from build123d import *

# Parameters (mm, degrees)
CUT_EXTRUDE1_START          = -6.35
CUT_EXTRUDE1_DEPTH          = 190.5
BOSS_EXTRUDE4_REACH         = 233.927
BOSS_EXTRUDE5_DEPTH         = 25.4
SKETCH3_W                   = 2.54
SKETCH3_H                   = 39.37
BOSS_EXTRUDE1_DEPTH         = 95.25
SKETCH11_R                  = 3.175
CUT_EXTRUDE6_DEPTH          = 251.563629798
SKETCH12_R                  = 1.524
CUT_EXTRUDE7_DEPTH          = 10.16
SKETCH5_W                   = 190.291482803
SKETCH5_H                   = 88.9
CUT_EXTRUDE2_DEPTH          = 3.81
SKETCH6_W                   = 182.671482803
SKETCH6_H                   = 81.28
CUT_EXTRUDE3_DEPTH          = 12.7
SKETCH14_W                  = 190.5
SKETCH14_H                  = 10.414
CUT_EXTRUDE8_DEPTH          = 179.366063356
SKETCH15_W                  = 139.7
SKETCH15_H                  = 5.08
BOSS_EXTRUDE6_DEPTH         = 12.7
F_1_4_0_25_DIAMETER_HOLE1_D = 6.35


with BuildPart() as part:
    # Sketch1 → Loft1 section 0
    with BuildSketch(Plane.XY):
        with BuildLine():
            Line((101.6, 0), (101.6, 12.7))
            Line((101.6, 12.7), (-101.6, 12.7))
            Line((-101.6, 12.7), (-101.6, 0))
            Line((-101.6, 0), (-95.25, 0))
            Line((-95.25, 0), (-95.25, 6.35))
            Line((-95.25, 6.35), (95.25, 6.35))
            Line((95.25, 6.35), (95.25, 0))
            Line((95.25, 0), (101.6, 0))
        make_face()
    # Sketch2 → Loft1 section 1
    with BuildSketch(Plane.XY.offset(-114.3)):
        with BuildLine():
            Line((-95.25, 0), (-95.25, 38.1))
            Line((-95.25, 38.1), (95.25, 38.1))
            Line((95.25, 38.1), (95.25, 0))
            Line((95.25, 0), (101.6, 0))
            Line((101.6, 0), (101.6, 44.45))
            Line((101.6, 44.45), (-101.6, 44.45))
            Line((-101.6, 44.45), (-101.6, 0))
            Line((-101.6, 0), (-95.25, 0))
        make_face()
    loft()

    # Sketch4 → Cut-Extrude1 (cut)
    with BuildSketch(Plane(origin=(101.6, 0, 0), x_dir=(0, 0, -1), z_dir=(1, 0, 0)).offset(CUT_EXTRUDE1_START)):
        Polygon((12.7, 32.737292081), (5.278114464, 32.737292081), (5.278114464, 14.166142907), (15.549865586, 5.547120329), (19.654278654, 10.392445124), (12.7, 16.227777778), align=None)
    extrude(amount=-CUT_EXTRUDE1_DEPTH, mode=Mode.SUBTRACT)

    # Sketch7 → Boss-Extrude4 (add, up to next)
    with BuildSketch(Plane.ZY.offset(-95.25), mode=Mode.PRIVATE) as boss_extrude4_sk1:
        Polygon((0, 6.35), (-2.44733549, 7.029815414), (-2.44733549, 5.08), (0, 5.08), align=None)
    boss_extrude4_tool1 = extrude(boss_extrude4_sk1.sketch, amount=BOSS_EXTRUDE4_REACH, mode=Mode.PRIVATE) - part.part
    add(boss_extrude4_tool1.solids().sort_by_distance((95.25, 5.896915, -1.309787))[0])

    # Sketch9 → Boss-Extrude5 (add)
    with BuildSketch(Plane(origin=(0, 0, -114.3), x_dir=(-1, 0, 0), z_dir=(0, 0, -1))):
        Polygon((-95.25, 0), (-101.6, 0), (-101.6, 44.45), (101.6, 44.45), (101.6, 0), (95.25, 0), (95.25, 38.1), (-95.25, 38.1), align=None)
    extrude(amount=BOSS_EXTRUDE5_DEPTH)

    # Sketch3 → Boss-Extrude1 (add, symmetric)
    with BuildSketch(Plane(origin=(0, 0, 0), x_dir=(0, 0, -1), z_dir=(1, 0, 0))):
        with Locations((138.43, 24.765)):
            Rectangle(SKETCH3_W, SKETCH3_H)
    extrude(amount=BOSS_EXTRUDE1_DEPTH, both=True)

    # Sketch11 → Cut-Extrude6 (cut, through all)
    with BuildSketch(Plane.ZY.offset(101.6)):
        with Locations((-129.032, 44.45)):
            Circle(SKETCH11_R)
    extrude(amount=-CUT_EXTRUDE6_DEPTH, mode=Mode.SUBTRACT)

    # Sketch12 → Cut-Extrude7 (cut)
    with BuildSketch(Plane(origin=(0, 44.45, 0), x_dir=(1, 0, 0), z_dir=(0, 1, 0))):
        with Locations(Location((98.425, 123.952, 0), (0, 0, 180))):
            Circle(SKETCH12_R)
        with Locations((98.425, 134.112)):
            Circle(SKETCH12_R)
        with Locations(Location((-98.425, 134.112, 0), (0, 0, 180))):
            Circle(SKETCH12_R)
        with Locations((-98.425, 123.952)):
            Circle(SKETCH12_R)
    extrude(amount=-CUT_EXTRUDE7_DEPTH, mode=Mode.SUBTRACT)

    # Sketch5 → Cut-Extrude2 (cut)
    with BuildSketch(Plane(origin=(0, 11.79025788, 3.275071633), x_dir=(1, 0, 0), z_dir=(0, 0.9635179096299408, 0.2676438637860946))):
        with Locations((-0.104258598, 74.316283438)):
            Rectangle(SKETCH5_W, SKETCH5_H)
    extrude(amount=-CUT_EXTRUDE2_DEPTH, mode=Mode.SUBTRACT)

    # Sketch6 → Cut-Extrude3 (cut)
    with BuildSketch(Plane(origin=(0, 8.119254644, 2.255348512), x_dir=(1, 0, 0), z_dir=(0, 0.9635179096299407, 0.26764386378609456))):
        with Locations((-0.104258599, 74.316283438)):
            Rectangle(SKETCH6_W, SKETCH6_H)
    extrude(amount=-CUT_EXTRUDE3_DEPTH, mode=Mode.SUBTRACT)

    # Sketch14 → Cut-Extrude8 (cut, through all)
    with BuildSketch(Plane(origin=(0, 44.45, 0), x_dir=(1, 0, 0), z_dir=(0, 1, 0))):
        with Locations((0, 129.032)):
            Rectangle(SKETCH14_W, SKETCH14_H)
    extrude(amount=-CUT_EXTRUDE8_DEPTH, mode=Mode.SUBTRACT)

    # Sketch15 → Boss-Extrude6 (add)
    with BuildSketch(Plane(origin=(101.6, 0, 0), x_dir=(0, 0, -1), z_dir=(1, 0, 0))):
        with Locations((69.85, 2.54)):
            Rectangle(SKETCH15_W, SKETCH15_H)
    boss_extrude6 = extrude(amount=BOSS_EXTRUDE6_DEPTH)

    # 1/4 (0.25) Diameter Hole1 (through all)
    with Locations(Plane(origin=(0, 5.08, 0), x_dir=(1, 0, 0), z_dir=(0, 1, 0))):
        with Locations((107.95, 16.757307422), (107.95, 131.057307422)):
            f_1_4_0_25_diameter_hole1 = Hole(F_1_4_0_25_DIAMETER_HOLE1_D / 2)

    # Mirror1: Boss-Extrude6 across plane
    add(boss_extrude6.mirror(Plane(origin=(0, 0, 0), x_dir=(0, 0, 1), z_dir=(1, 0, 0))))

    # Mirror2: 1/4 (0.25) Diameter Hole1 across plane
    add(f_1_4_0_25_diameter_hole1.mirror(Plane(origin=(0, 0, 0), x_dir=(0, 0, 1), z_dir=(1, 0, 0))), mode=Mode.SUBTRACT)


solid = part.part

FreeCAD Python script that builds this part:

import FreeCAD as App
import Part
import Sketcher

V = App.Vector
Q = App.Units.Quantity

doc = App.newDocument("Part")
body = doc.addObject("PartDesign::Body", "Body")

# Sketch on XY plane
sketch1 = body.newObject("Sketcher::SketchObject", "Sketch")
sketch1.AttachmentSupport = (doc.getObject("XY_Plane"), [""])
sketch1.MapMode = "FlatFace"
sketch1.addGeometry([
    Part.LineSegment(V(101.6, 0, 0), V(101.6, 12.7, 0)),  # 0
    Part.LineSegment(V(101.6, 12.7, 0), V(-101.6, 12.7, 0)),  # 1
    Part.LineSegment(V(-101.6, 12.7, 0), V(-101.6, 0, 0)),  # 2
    Part.LineSegment(V(-101.6, 0, 0), V(-95.25, 0, 0)),  # 3
    Part.LineSegment(V(-95.25, 0, 0), V(-95.25, 6.35, 0)),  # 4
    Part.LineSegment(V(-95.25, 6.35, 0), V(95.25, 6.35, 0)),  # 5
    Part.LineSegment(V(95.25, 6.35, 0), V(95.25, 0, 0)),  # 6
    Part.LineSegment(V(95.25, 0, 0), V(101.6, 0, 0)),  # 7
], False)
sketch1.addConstraint([
    Sketcher.Constraint("Coincident", 0, 2, 1, 1),
    Sketcher.Constraint("Coincident", 1, 2, 2, 1),
    Sketcher.Constraint("Coincident", 2, 2, 3, 1),
    Sketcher.Constraint("Coincident", 3, 2, 4, 1),
    Sketcher.Constraint("Coincident", 4, 2, 5, 1),
    Sketcher.Constraint("Coincident", 5, 2, 6, 1),
    Sketcher.Constraint("Coincident", 6, 2, 7, 1),
    Sketcher.Constraint("Coincident", 7, 2, 0, 1),
    Sketcher.Constraint("Vertical", 0),
    Sketcher.Constraint("Horizontal", 1),
    Sketcher.Constraint("Vertical", 2),
    Sketcher.Constraint("Horizontal", 3),
    Sketcher.Constraint("Vertical", 4),
    Sketcher.Constraint("Horizontal", 5),
    Sketcher.Constraint("Vertical", 6),
    Sketcher.Constraint("Horizontal", 7),
    Sketcher.Constraint("Symmetric", 3, 2, 6, 2, -1, 1),
    Sketcher.Constraint("Symmetric", 2, 2, 7, 2, -2),
    Sketcher.Constraint("Equal", 7, 4),
    Sketcher.Constraint("DistanceX", 1, 2, 1, 1, Q("8 in")),
    Sketcher.Constraint("DistanceX", 5, 1, 5, 2, Q("7.5 in")),
    Sketcher.Constraint("DistanceY", 0, 1, 0, 2, Q("0.5 in")),
])

# Sketch on XY plane
sketch2 = body.newObject("Sketcher::SketchObject", "Sketch001")
sketch2.AttachmentSupport = (doc.getObject("XY_Plane"), [""])
sketch2.MapMode = "FlatFace"
sketch2.AttachmentOffset = App.Placement(V(0, 0, -4.5 * 25.4), App.Rotation())
sketch2.addGeometry([
    Part.LineSegment(V(-95.25, 0, 0), V(-95.25, 38.1, 0)),  # 0
    Part.LineSegment(V(-95.25, 38.1, 0), V(95.25, 38.1, 0)),  # 1
    Part.LineSegment(V(95.25, 38.1, 0), V(95.25, 0, 0)),  # 2
    Part.LineSegment(V(95.25, 0, 0), V(101.6, 0, 0)),  # 3
    Part.LineSegment(V(101.6, 0, 0), V(101.6, 44.45, 0)),  # 4
    Part.LineSegment(V(101.6, 44.45, 0), V(-101.6, 44.45, 0)),  # 5
    Part.LineSegment(V(-101.6, 44.45, 0), V(-101.6, 0, 0)),  # 6
    Part.LineSegment(V(-101.6, 0, 0), V(-95.25, 0, 0)),  # 7
], False)
sketch2.addConstraint([
    Sketcher.Constraint("Coincident", 0, 2, 1, 1),
    Sketcher.Constraint("Coincident", 1, 2, 2, 1),
    Sketcher.Constraint("Coincident", 2, 2, 3, 1),
    Sketcher.Constraint("Coincident", 3, 2, 4, 1),
    Sketcher.Constraint("Coincident", 4, 2, 5, 1),
    Sketcher.Constraint("Coincident", 5, 2, 6, 1),
    Sketcher.Constraint("Coincident", 6, 2, 7, 1),
    Sketcher.Constraint("Coincident", 7, 2, 0, 1),
    Sketcher.Constraint("Vertical", 0),
    Sketcher.Constraint("Horizontal", 1),
    Sketcher.Constraint("Vertical", 2),
    Sketcher.Constraint("Horizontal", 3),
    Sketcher.Constraint("Vertical", 4),
    Sketcher.Constraint("Horizontal", 5),
    Sketcher.Constraint("Vertical", 6),
    Sketcher.Constraint("Horizontal", 7),
    Sketcher.Constraint("Symmetric", 3, 2, 6, 2, -1, 1),
    Sketcher.Constraint("Symmetric", 2, 2, 7, 2, -2),
    Sketcher.Constraint("DistanceX", 5, 2, 5, 1, Q("8 in")),
    Sketcher.Constraint("DistanceX", 1, 1, 1, 2, Q("7.5 in")),
    Sketcher.Constraint("DistanceY", 0, 1, 0, 2, Q("1.5 in")),
    Sketcher.Constraint("DistanceY", 4, 1, 4, 2, Q("1.75 in")),
])

additiveloft = body.newObject("PartDesign::AdditiveLoft", "AdditiveLoft")
additiveloft.Profile = sketch1
additiveloft.Sections = [sketch2]

# Sketch on YZ plane
sketch3 = body.newObject("Sketcher::SketchObject", "Sketch002")
sketch3.AttachmentSupport = (doc.getObject("YZ_Plane"), [""])
sketch3.MapMode = "FlatFace"
sketch3.AttachmentOffset = App.Placement(V(0, 0, 3.75 * 25.4), App.Rotation())
sketch3.addGeometry([
    Part.LineSegment(V(32.737292, -12.7, 0), V(32.737292, -5.278114, 0)),  # 0
    Part.LineSegment(V(32.737292, -5.278114, 0), V(14.166143, -5.278114, 0)),  # 1
    Part.LineSegment(V(14.166143, -5.278114, 0), V(5.54712, -15.549866, 0)),  # 2
    Part.LineSegment(V(5.54712, -15.549866, 0), V(10.392445, -19.654279, 0)),  # 3
    Part.LineSegment(V(10.392445, -19.654279, 0), V(16.227778, -12.7, 0)),  # 4
    Part.LineSegment(V(16.227778, -12.7, 0), V(32.737292, -12.7, 0)),  # 5
], False)
sketch3.addConstraint([
    Sketcher.Constraint("Coincident", 0, 2, 1, 1),
    Sketcher.Constraint("Coincident", 1, 2, 2, 1),
    Sketcher.Constraint("Coincident", 2, 2, 3, 1),
    Sketcher.Constraint("Coincident", 3, 2, 4, 1),
    Sketcher.Constraint("Coincident", 4, 2, 5, 1),
    Sketcher.Constraint("Coincident", 5, 2, 0, 1),
    Sketcher.Constraint("Vertical", 0),
    Sketcher.Constraint("Horizontal", 1),
    Sketcher.Constraint("Horizontal", 5),
    Sketcher.Constraint("DistanceY", 4, 2, -1, 1, Q("0.5 in")),
    Sketcher.Constraint("DistanceX", 1, 2, 1, 1, Q("18.571149 mm")),
    Sketcher.Constraint("Distance", 2, Q("13.408819 mm")),
    Sketcher.Constraint("Distance", 3, Q("6.350069 mm")),
    Sketcher.Constraint("DistanceX", 5, 1, 5, 2, Q("16.509514 mm")),
    Sketcher.Constraint("DistanceY", 0, 1, 0, 2, Q("7.421886 mm")),
    Sketcher.Constraint("DistanceX", -1, 1, 2, 2, Q("5.54712 mm")),
    Sketcher.Constraint("DistanceY", 3, 2, -1, 1, Q("19.654279 mm")),
    Sketcher.Constraint("DistanceY", 2, 2, 1, 2, Q("10.271751 mm")),
])
pocket1 = body.newObject("PartDesign::Pocket", "Pocket")
pocket1.Profile = sketch3
pocket1.Length = Q("7.5 in")

# Sketch on YZ plane
sketch4 = body.newObject("Sketcher::SketchObject", "Sketch003")
sketch4.AttachmentSupport = (doc.getObject("YZ_Plane"), [""])
sketch4.MapMode = "FlatFace"
sketch4.AttachmentOffset = App.Placement(V(0, 0, 3.75 * 25.4), App.Rotation())
sketch4.addGeometry([
    Part.LineSegment(V(6.35, 0, 0), V(7.029815, -2.447335, 0)),
    Part.LineSegment(V(7.029815, -2.447335, 0), V(5.08, -2.447335, 0)),
    Part.LineSegment(V(5.08, -2.447335, 0), V(5.08, 0, 0)),
    Part.LineSegment(V(5.08, 0, 0), V(6.35, 0, 0)),
], False)
sketch4.addConstraint([
    Sketcher.Constraint("Coincident", 0, 2, 1, 1),
    Sketcher.Constraint("Coincident", 1, 2, 2, 1),
    Sketcher.Constraint("Coincident", 2, 2, 3, 1),
    Sketcher.Constraint("Coincident", 3, 2, 0, 1),
    Sketcher.Constraint("Horizontal", 1),
    Sketcher.Constraint("Vertical", 2),
    Sketcher.Constraint("Horizontal", 3),
    Sketcher.Constraint("PointOnObject", 2, 2, -1),
    Sketcher.Constraint("Distance", 0, Q("0.1 in")),
    Sketcher.Constraint("DistanceX", 3, 1, 3, 2, Q("0.05 in")),
    Sketcher.Constraint("DistanceX", -1, 1, 1, 2, Q("0.2 in")),
    Sketcher.Constraint("DistanceX", 1, 2, 1, 1, Q("1.949815 mm")),
])
pad1 = body.newObject("PartDesign::Pad", "Pad")
pad1.Profile = sketch4
pad1.Type = "UpToFirst"
pad1.Reversed = True

# Sketch on XY plane
sketch5 = body.newObject("Sketcher::SketchObject", "Sketch004")
sketch5.AttachmentSupport = (doc.getObject("XY_Plane"), [""])
sketch5.MapMode = "FlatFace"
sketch5.AttachmentOffset = App.Placement(V(0, 0, -4.5 * 25.4), App.Rotation())
sketch5.addGeometry([
    Part.LineSegment(V(101.6, 0, 0), V(95.25, 0, 0)),  # 0
    Part.LineSegment(V(95.25, 0, 0), V(95.25, 38.1, 0)),  # 1
    Part.LineSegment(V(95.25, 38.1, 0), V(-95.25, 38.1, 0)),  # 2
    Part.LineSegment(V(-95.25, 38.1, 0), V(-95.25, 0, 0)),  # 3
    Part.LineSegment(V(-95.25, 0, 0), V(-101.6, 0, 0)),  # 4
    Part.LineSegment(V(-101.6, 0, 0), V(-101.6, 44.45, 0)),  # 5
    Part.LineSegment(V(-101.6, 44.45, 0), V(101.6, 44.45, 0)),  # 6
    Part.LineSegment(V(101.6, 44.45, 0), V(101.6, 0, 0)),  # 7
], False)
sketch5.addConstraint([
    Sketcher.Constraint("Coincident", 0, 2, 1, 1),
    Sketcher.Constraint("Coincident", 1, 2, 2, 1),
    Sketcher.Constraint("Coincident", 2, 2, 3, 1),
    Sketcher.Constraint("Coincident", 3, 2, 4, 1),
    Sketcher.Constraint("Coincident", 4, 2, 5, 1),
    Sketcher.Constraint("Coincident", 5, 2, 6, 1),
    Sketcher.Constraint("Coincident", 6, 2, 7, 1),
    Sketcher.Constraint("Coincident", 7, 2, 0, 1),
    Sketcher.Constraint("Horizontal", 0),
    Sketcher.Constraint("Vertical", 1),
    Sketcher.Constraint("Horizontal", 2),
    Sketcher.Constraint("Vertical", 3),
    Sketcher.Constraint("Horizontal", 4),
    Sketcher.Constraint("Vertical", 5),
    Sketcher.Constraint("Horizontal", 6),
    Sketcher.Constraint("Vertical", 7),
    Sketcher.Constraint("Symmetric", 0, 2, 3, 2, -1, 1),
    Sketcher.Constraint("Symmetric", 4, 2, 7, 2, -2),
    Sketcher.Constraint("DistanceX", 6, 1, 6, 2, Q("8 in")),
    Sketcher.Constraint("DistanceX", 2, 2, 2, 1, Q("7.5 in")),
    Sketcher.Constraint("DistanceY", 1, 1, 1, 2, Q("1.5 in")),
    Sketcher.Constraint("DistanceY", 5, 1, 5, 2, Q("1.75 in")),
])
pad2 = body.newObject("PartDesign::Pad", "Pad001")
pad2.Profile = sketch5
pad2.Length = Q("1 in")
pad2.Reversed = True

# Sketch on YZ plane
sketch6 = body.newObject("Sketcher::SketchObject", "Sketch005")
sketch6.AttachmentSupport = (doc.getObject("YZ_Plane"), [""])
sketch6.MapMode = "FlatFace"
sketch6.addGeometry([
    Part.LineSegment(V(44.45, -137.16, 0), V(5.08, -137.16, 0)),
    Part.LineSegment(V(5.08, -137.16, 0), V(5.08, -139.7, 0)),
    Part.LineSegment(V(5.08, -139.7, 0), V(44.45, -139.7, 0)),
    Part.LineSegment(V(44.45, -139.7, 0), V(44.45, -137.16, 0)),
], False)
sketch6.addConstraint([
    Sketcher.Constraint("Coincident", 0, 2, 1, 1),
    Sketcher.Constraint("Coincident", 1, 2, 2, 1),
    Sketcher.Constraint("Coincident", 2, 2, 3, 1),
    Sketcher.Constraint("Coincident", 3, 2, 0, 1),
    Sketcher.Constraint("Horizontal", 0),
    Sketcher.Constraint("Vertical", 1),
    Sketcher.Constraint("Horizontal", 2),
    Sketcher.Constraint("Vertical", 3),
    Sketcher.Constraint("DistanceY", 1, 2, 1, 1, Q("0.1 in")),
    Sketcher.Constraint("DistanceX", 0, 2, 0, 1, Q("1.55 in")),
    Sketcher.Constraint("DistanceX", -1, 1, 0, 2, Q("0.2 in")),
    Sketcher.Constraint("DistanceY", 0, 2, -1, 1, Q("5.4 in")),
])
pad3 = body.newObject("PartDesign::Pad", "Pad002")
pad3.Profile = sketch6
pad3.Length = Q("7.5 in")
pad3.Midplane = True

# Sketch on YZ plane
sketch7 = body.newObject("Sketcher::SketchObject", "Sketch006")
sketch7.AttachmentSupport = (doc.getObject("YZ_Plane"), [""])
sketch7.MapMode = "FlatFace"
sketch7.AttachmentOffset = App.Placement(V(0, 0, -4 * 25.4), App.Rotation())
sketch7.addGeometry(Part.Circle(V(44.45, -129.032, 0), V(0, 0, 1), 3.175), False)
sketch7.addConstraint([
    Sketcher.Constraint("Diameter", 0, Q("0.25 in")),
    Sketcher.Constraint("DistanceX", -1, 1, 0, 3, Q("1.75 in")),
    Sketcher.Constraint("DistanceY", 0, 3, -1, 1, Q("5.08 in")),
])
pocket2 = body.newObject("PartDesign::Pocket", "Pocket001")
pocket2.Profile = sketch7
pocket2.Type = "ThroughAll"
pocket2.Reversed = True

# Sketch on XZ plane
sketch8 = body.newObject("Sketcher::SketchObject", "Sketch007")
sketch8.AttachmentSupport = (doc.getObject("XZ_Plane"), [""])
sketch8.MapMode = "FlatFace"
sketch8.AttachmentOffset = App.Placement(V(0, 0, -1.75 * 25.4), App.Rotation())
sketch8.addGeometry([
    Part.Circle(V(98.425, -123.952, 0), V(0, 0, 1), 1.524),
    Part.Circle(V(98.425, -134.112, 0), V(0, 0, 1), 1.524),
    Part.Circle(V(-98.425, -134.112, 0), V(0, 0, 1), 1.524),
    Part.Circle(V(-98.425, -123.952, 0), V(0, 0, 1), 1.524),
], False)
sketch8.addConstraint([
    Sketcher.Constraint("Equal", 0, 1),
    Sketcher.Constraint("Equal", 1, 2),
    Sketcher.Constraint("Equal", 2, 3),
    Sketcher.Constraint("Symmetric", 1, 3, 2, 3, -2),
    Sketcher.Constraint("Symmetric", 0, 3, 3, 3, -2),
    Sketcher.Constraint("Vertical", 0, 3, 1, 3),
    Sketcher.Constraint("Diameter", 0, Q("0.12 in")),
    Sketcher.Constraint("DistanceY", 1, 3, 0, 3, Q("0.4 in")),
    Sketcher.Constraint("DistanceY", 0, 3, -1, 1, Q("4.88 in")),
    Sketcher.Constraint("DistanceX", 2, 3, 1, 3, Q("7.75 in")),
])
pocket3 = body.newObject("PartDesign::Pocket", "Pocket002")
pocket3.Profile = sketch8
pocket3.Length = Q("0.4 in")
pocket3.Reversed = True

# Sketch on an angled plane
sketch9 = body.newObject("Sketcher::SketchObject", "Sketch008")
sketch9.Placement = App.Placement(V(0, 11.790258, 3.275072), App.Rotation(V(1, 0, 0), V(0, 0.267643864, -0.96351791), V(0, 0.96351791, 0.267643864), "ZXY"))
sketch9.addGeometry([
    Part.LineSegment(V(-95.25, 118.766284, 0), V(-95.25, 29.866283, 0)),
    Part.LineSegment(V(-95.25, 29.866283, 0), V(95.041483, 29.866283, 0)),
    Part.LineSegment(V(95.041483, 29.866283, 0), V(95.041483, 118.766284, 0)),
    Part.LineSegment(V(95.041483, 118.766284, 0), V(-95.25, 118.766284, 0)),
], False)
sketch9.addConstraint([
    Sketcher.Constraint("Coincident", 0, 2, 1, 1),
    Sketcher.Constraint("Coincident", 1, 2, 2, 1),
    Sketcher.Constraint("Coincident", 2, 2, 3, 1),
    Sketcher.Constraint("Coincident", 3, 2, 0, 1),
    Sketcher.Constraint("Vertical", 0),
    Sketcher.Constraint("Horizontal", 1),
    Sketcher.Constraint("Vertical", 2),
    Sketcher.Constraint("Horizontal", 3),
    Sketcher.Constraint("DistanceY", 0, 2, 0, 1, Q("3.5 in")),
    Sketcher.Constraint("DistanceX", 0, 2, -1, 1, Q("3.75 in")),
    Sketcher.Constraint("DistanceX", 1, 1, 1, 2, Q("190.291483 mm")),
    Sketcher.Constraint("DistanceY", -1, 1, 0, 2, Q("29.866283 mm")),
])
pocket4 = body.newObject("PartDesign::Pocket", "Pocket003")
pocket4.Profile = sketch9
pocket4.Length = Q("0.15 in")

# Sketch on an angled plane
sketch10 = body.newObject("Sketcher::SketchObject", "Sketch009")
sketch10.Placement = App.Placement(V(0, 8.119255, 2.255349), App.Rotation(V(1, 0, 0), V(0, 0.267643864, -0.96351791), V(0, 0.96351791, 0.267643864), "ZXY"))
sketch10.addGeometry([
    Part.LineSegment(V(-91.44, 114.956284, 0), V(-91.44, 33.676283, 0)),
    Part.LineSegment(V(-91.44, 33.676283, 0), V(91.231483, 33.676283, 0)),
    Part.LineSegment(V(91.231483, 33.676283, 0), V(91.231483, 114.956284, 0)),
    Part.LineSegment(V(91.231483, 114.956284, 0), V(-91.44, 114.956284, 0)),
], False)
sketch10.addConstraint([
    Sketcher.Constraint("Coincident", 0, 2, 1, 1),
    Sketcher.Constraint("Coincident", 1, 2, 2, 1),
    Sketcher.Constraint("Coincident", 2, 2, 3, 1),
    Sketcher.Constraint("Coincident", 3, 2, 0, 1),
    Sketcher.Constraint("Vertical", 0),
    Sketcher.Constraint("Horizontal", 1),
    Sketcher.Constraint("Vertical", 2),
    Sketcher.Constraint("Horizontal", 3),
    Sketcher.Constraint("DistanceY", 0, 2, 0, 1, Q("3.2 in")),
    Sketcher.Constraint("DistanceX", 0, 2, -1, 1, Q("3.6 in")),
    Sketcher.Constraint("DistanceX", 1, 1, 1, 2, Q("182.671483 mm")),
    Sketcher.Constraint("DistanceY", -1, 1, 0, 2, Q("33.676283 mm")),
])
pocket5 = body.newObject("PartDesign::Pocket", "Pocket004")
pocket5.Profile = sketch10
pocket5.Length = Q("0.5 in")

# Sketch on XZ plane
sketch11 = body.newObject("Sketcher::SketchObject", "Sketch010")
sketch11.AttachmentSupport = (doc.getObject("XZ_Plane"), [""])
sketch11.MapMode = "FlatFace"
sketch11.AttachmentOffset = App.Placement(V(0, 0, -1.75 * 25.4), App.Rotation())
sketch11.addGeometry([
    Part.LineSegment(V(-95.25, -134.239, 0), V(-95.25, -123.825, 0)),
    Part.LineSegment(V(-95.25, -123.825, 0), V(95.25, -123.825, 0)),
    Part.LineSegment(V(95.25, -123.825, 0), V(95.25, -134.239, 0)),
    Part.LineSegment(V(95.25, -134.239, 0), V(-95.25, -134.239, 0)),
], False)
sketch11.addConstraint([
    Sketcher.Constraint("Coincident", 0, 2, 1, 1),
    Sketcher.Constraint("Coincident", 1, 2, 2, 1),
    Sketcher.Constraint("Coincident", 2, 2, 3, 1),
    Sketcher.Constraint("Coincident", 3, 2, 0, 1),
    Sketcher.Constraint("Vertical", 0),
    Sketcher.Constraint("Horizontal", 1),
    Sketcher.Constraint("Vertical", 2),
    Sketcher.Constraint("Horizontal", 3),
    Sketcher.Constraint("DistanceX", 1, 1, 1, 2, Q("7.5 in")),
    Sketcher.Constraint("DistanceY", 0, 1, 0, 2, Q("0.41 in")),
    Sketcher.Constraint("DistanceX", 0, 2, -1, 1, Q("3.75 in")),
    Sketcher.Constraint("DistanceY", 0, 2, -1, 1, Q("4.875 in")),
])
pocket6 = body.newObject("PartDesign::Pocket", "Pocket005")
pocket6.Profile = sketch11
pocket6.Type = "ThroughAll"
pocket6.Reversed = True

# Sketch on YZ plane
sketch12 = body.newObject("Sketcher::SketchObject", "Sketch011")
sketch12.AttachmentSupport = (doc.getObject("YZ_Plane"), [""])
sketch12.MapMode = "FlatFace"
sketch12.AttachmentOffset = App.Placement(V(0, 0, 4 * 25.4), App.Rotation())
sketch12.addGeometry([
    Part.LineSegment(V(5.08, 0, 0), V(0, 0, 0)),
    Part.LineSegment(V(0, 0, 0), V(0, -139.7, 0)),
    Part.LineSegment(V(0, -139.7, 0), V(5.08, -139.7, 0)),
    Part.LineSegment(V(5.08, -139.7, 0), V(5.08, 0, 0)),
], False)
sketch12.addConstraint([
    Sketcher.Constraint("Coincident", 0, 2, 1, 1),
    Sketcher.Constraint("Coincident", 1, 2, 2, 1),
    Sketcher.Constraint("Coincident", 2, 2, 3, 1),
    Sketcher.Constraint("Coincident", 3, 2, 0, 1),
    Sketcher.Constraint("Horizontal", 0),
    Sketcher.Constraint("Vertical", 1),
    Sketcher.Constraint("Horizontal", 2),
    Sketcher.Constraint("Vertical", 3),
    Sketcher.Constraint("Coincident", 0, 2, -1, 1),
    Sketcher.Constraint("DistanceX", 0, 2, 0, 1, Q("0.2 in")),
    Sketcher.Constraint("DistanceY", 1, 2, 1, 1, Q("5.5 in")),
])
pad4 = body.newObject("PartDesign::Pad", "Pad003")
pad4.Profile = sketch12
pad4.Length = Q("0.5 in")

# Sketch on XZ plane
sketch13 = body.newObject("Sketcher::SketchObject", "Sketch012")
sketch13.AttachmentSupport = (doc.getObject("XZ_Plane"), [""])
sketch13.MapMode = "FlatFace"
sketch13.AttachmentOffset = App.Placement(V(0, 0, -0.2 * 25.4), App.Rotation())
sketch13.addGeometry([
    Part.Circle(V(107.95, -16.757307, 0), V(0, 0, 1), 3.175),
    Part.Circle(V(107.95, -131.057307, 0), V(0, 0, 1), 3.175),
], False)
sketch13.addConstraint([
    Sketcher.Constraint("Equal", 0, 1),
    Sketcher.Constraint("Vertical", 0, 3, 1, 3),
    Sketcher.Constraint("Diameter", 0, Q("0.25 in")),
    Sketcher.Constraint("DistanceY", 1, 3, 0, 3, Q("4.5 in")),
    Sketcher.Constraint("DistanceX", -1, 1, 0, 3, Q("4.25 in")),
    Sketcher.Constraint("DistanceY", 0, 3, -1, 1, Q("16.757307 mm")),
])
doc.recompute()
hole = body.newObject("PartDesign::Hole", "Hole")
hole.Profile = sketch13
hole.ThreadType = "None"
hole.Diameter = Q("0.25 in")
hole.DepthType = "ThroughAll"
hole.Reversed = True
doc.recompute()

mirrored = body.newObject("PartDesign::Mirrored", "Mirrored")
mirrored.Originals = [pad4]
mirrored.MirrorPlane = (doc.getObject("YZ_Plane"), [""])
body.Tip = mirrored
doc.recompute()

mirrored2 = body.newObject("PartDesign::Mirrored", "Mirrored001")
mirrored2.Originals = [hole]
mirrored2.MirrorPlane = (doc.getObject("YZ_Plane"), [""])
body.Tip = mirrored2

doc.recompute()
